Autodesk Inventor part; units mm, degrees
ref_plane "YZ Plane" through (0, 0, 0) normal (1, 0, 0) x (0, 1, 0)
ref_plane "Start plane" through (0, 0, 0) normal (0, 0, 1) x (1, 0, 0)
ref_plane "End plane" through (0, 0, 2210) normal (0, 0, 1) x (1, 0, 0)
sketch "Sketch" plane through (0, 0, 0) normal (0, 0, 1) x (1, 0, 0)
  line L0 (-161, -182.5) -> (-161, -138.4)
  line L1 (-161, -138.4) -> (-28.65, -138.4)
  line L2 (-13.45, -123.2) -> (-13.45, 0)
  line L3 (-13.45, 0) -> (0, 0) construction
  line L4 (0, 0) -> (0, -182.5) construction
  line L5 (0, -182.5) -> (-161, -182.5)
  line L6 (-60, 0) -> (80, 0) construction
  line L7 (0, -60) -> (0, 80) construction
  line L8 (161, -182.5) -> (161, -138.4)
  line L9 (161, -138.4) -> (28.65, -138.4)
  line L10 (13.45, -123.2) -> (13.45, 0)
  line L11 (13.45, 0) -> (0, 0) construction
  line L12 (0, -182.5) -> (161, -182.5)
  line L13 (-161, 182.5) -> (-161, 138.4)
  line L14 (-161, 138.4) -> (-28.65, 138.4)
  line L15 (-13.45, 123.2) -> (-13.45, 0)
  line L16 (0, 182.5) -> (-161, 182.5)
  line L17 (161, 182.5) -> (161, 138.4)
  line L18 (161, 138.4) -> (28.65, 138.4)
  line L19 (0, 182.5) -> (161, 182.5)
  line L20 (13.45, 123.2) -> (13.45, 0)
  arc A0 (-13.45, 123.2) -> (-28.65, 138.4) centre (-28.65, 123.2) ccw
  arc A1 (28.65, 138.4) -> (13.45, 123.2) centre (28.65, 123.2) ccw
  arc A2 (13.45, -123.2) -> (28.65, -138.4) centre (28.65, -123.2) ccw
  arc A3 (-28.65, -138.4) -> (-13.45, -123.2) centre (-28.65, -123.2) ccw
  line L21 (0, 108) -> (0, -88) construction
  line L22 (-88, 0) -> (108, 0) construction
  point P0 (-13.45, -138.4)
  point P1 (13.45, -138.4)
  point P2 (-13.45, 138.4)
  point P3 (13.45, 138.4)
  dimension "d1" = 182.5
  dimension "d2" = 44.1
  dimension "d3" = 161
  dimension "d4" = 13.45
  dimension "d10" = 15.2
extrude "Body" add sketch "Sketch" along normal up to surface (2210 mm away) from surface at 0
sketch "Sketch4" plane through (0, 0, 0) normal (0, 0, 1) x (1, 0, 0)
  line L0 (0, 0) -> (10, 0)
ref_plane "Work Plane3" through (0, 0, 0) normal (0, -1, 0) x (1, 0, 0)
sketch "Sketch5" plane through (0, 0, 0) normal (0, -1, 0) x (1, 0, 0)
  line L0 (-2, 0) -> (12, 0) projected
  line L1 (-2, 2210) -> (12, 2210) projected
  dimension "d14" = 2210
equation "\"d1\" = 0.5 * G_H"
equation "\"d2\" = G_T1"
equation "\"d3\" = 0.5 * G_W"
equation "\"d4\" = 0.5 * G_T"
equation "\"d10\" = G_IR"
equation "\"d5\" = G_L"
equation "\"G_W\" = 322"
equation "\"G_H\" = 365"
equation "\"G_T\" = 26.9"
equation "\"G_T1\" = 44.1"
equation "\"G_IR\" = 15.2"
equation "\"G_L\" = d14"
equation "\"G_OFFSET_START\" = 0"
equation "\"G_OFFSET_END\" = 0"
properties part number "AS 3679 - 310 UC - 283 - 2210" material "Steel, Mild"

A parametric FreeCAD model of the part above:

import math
import FreeCAD as App
import Part
import Sketcher

doc = App.newDocument("Part")
params = doc.addObject("Spreadsheet::Sheet", "Params")
for row, (alias, value) in enumerate([
    ("sketch1_radius", "15.2 mm"),
    ("sketch1_height", "44.1 mm"),
    ("pad1_length", "2210 mm"),
], start=1):
    params.set(f"A{row}", alias)
    params.set(f"B{row}", "=" + value)
    params.setAlias(f"B{row}", alias)

body = doc.addObject("PartDesign::Body", "Body")

sketch1 = body.newObject("Sketcher::SketchObject", "Sketch")
sketch1.AttachmentSupport = (doc.getObject("XY_Plane"), [""])
sketch1.MapMode = "FlatFace"
sketch1.addGeometry(Part.LineSegment(App.Vector(-161, -138, 0), App.Vector(-161, -182, 0)), False)
sketch1.addGeometry(Part.LineSegment(App.Vector(-161, -182, 0), App.Vector(161, -182, 0)), False)
sketch1.addGeometry(Part.LineSegment(App.Vector(161, -182, 0), App.Vector(161, -138, 0)), False)
sketch1.addGeometry(Part.LineSegment(App.Vector(161, -138, 0), App.Vector(29, -138, 0)), False)
sketch1.addGeometry(Part.ArcOfCircle(Part.Circle(App.Vector(29, -123, 0), App.Vector(0, 0, 1), 15), math.radians(180), math.radians(270)), False)
sketch1.addGeometry(Part.LineSegment(App.Vector(13, -123, 0), App.Vector(13, 123, 0)), False)
sketch1.addGeometry(Part.ArcOfCircle(Part.Circle(App.Vector(29, 123, 0), App.Vector(0, 0, 1), 15), math.radians(90), math.radians(180)), False)
sketch1.addGeometry(Part.LineSegment(App.Vector(29, 138, 0), App.Vector(161, 138, 0)), False)
sketch1.addGeometry(Part.LineSegment(App.Vector(161, 138, 0), App.Vector(161, 182, 0)), False)
sketch1.addGeometry(Part.LineSegment(App.Vector(161, 182, 0), App.Vector(-161, 182, 0)), False)
sketch1.addGeometry(Part.LineSegment(App.Vector(-161, 182, 0), App.Vector(-161, 138, 0)), False)
sketch1.addGeometry(Part.LineSegment(App.Vector(-161, 138, 0), App.Vector(-29, 138, 0)), False)
sketch1.addGeometry(Part.ArcOfCircle(Part.Circle(App.Vector(-29, 123, 0), App.Vector(0, 0, 1), 15), math.radians(0), math.radians(90)), False)
sketch1.addGeometry(Part.LineSegment(App.Vector(-13, 123, 0), App.Vector(-13, -123, 0)), False)
sketch1.addGeometry(Part.ArcOfCircle(Part.Circle(App.Vector(-29, -123, 0), App.Vector(0, 0, 1), 15), math.radians(-90), math.radians(0)), False)
sketch1.addGeometry(Part.LineSegment(App.Vector(-29, -138, 0), App.Vector(-161, -138, 0)), False)
sketch1.addConstraint(Sketcher.Constraint("Coincident", 0, 2, 1, 1))
sketch1.addConstraint(Sketcher.Constraint("Coincident", 1, 2, 2, 1))
sketch1.addConstraint(Sketcher.Constraint("Coincident", 2, 2, 3, 1))
sketch1.addConstraint(Sketcher.Constraint("Tangent", 3, 2, 4, 2))
sketch1.addConstraint(Sketcher.Constraint("Tangent", 4, 1, 5, 1))
sketch1.addConstraint(Sketcher.Constraint("Tangent", 5, 2, 6, 2))
sketch1.addConstraint(Sketcher.Constraint("Tangent", 6, 1, 7, 1))
sketch1.addConstraint(Sketcher.Constraint("Coincident", 7, 2, 8, 1))
sketch1.addConstraint(Sketcher.Constraint("Coincident", 8, 2, 9, 1))
sketch1.addConstraint(Sketcher.Constraint("Coincident", 9, 2, 10, 1))
sketch1.addConstraint(Sketcher.Constraint("Coincident", 10, 2, 11, 1))
sketch1.addConstraint(Sketcher.Constraint("Tangent", 11, 2, 12, 2))
sketch1.addConstraint(Sketcher.Constraint("Tangent", 12, 1, 13, 1))
sketch1.addConstraint(Sketcher.Constraint("Tangent", 13, 2, 14, 2))
sketch1.addConstraint(Sketcher.Constraint("Tangent", 14, 1, 15, 1))
sketch1.addConstraint(Sketcher.Constraint("Coincident", 15, 2, 0, 1))
sketch1.addConstraint(Sketcher.Constraint("Vertical", 0))
sketch1.addConstraint(Sketcher.Constraint("Horizontal", 1))
sketch1.addConstraint(Sketcher.Constraint("Vertical", 2))
sketch1.addConstraint(Sketcher.Constraint("Horizontal", 3))
sketch1.addConstraint(Sketcher.Constraint("Vertical", 5))
sketch1.addConstraint(Sketcher.Constraint("Horizontal", 7))
sketch1.addConstraint(Sketcher.Constraint("Vertical", 8))
sketch1.addConstraint(Sketcher.Constraint("Horizontal", 9))
sketch1.addConstraint(Sketcher.Constraint("Vertical", 10))
sketch1.addConstraint(Sketcher.Constraint("Horizontal", 11))
sketch1.addConstraint(Sketcher.Constraint("Vertical", 13))
sketch1.addConstraint(Sketcher.Constraint("Horizontal", 15))
sketch1.addConstraint(Sketcher.Constraint("Equal", 4, 6))
sketch1.addConstraint(Sketcher.Constraint("Equal", 6, 12))
sketch1.addConstraint(Sketcher.Constraint("Equal", 12, 14))
sketch1.addConstraint(Sketcher.Constraint("Symmetric", 4, 3, 12, 3, -1, 1))
sketch1.addConstraint(Sketcher.Constraint("Symmetric", 0, 2, 8, 2, -1, 1))
sketch1.addConstraint(Sketcher.Constraint("Symmetric", 7, 2, 10, 2, -2))
sketch1.addConstraint(Sketcher.Constraint("Symmetric", 2, 2, 15, 2, -2))
sketch1.addConstraint(Sketcher.Constraint("Radius", 4, 15.2))
sketch1.addConstraint(Sketcher.Constraint("DistanceY", 0, 2, 0, 1, 44.1))
sketch1.addConstraint(Sketcher.Constraint("DistanceX", 0, 2, -1, 1, 161.0))
sketch1.addConstraint(Sketcher.Constraint("DistanceY", 0, 2, -1, 1, 182.5))
sketch1.addConstraint(Sketcher.Constraint("DistanceX", -1, 1, 4, 1, 13.45))
sketch1.setExpression("Constraints[35]", "Params.sketch1_radius")
sketch1.setExpression("Constraints[36]", "Params.sketch1_height")
pad1 = body.newObject("PartDesign::Pad", "Pad")
pad1.Profile = sketch1
pad1.setExpression("Length", "Params.pad1_length")

doc.recompute()
